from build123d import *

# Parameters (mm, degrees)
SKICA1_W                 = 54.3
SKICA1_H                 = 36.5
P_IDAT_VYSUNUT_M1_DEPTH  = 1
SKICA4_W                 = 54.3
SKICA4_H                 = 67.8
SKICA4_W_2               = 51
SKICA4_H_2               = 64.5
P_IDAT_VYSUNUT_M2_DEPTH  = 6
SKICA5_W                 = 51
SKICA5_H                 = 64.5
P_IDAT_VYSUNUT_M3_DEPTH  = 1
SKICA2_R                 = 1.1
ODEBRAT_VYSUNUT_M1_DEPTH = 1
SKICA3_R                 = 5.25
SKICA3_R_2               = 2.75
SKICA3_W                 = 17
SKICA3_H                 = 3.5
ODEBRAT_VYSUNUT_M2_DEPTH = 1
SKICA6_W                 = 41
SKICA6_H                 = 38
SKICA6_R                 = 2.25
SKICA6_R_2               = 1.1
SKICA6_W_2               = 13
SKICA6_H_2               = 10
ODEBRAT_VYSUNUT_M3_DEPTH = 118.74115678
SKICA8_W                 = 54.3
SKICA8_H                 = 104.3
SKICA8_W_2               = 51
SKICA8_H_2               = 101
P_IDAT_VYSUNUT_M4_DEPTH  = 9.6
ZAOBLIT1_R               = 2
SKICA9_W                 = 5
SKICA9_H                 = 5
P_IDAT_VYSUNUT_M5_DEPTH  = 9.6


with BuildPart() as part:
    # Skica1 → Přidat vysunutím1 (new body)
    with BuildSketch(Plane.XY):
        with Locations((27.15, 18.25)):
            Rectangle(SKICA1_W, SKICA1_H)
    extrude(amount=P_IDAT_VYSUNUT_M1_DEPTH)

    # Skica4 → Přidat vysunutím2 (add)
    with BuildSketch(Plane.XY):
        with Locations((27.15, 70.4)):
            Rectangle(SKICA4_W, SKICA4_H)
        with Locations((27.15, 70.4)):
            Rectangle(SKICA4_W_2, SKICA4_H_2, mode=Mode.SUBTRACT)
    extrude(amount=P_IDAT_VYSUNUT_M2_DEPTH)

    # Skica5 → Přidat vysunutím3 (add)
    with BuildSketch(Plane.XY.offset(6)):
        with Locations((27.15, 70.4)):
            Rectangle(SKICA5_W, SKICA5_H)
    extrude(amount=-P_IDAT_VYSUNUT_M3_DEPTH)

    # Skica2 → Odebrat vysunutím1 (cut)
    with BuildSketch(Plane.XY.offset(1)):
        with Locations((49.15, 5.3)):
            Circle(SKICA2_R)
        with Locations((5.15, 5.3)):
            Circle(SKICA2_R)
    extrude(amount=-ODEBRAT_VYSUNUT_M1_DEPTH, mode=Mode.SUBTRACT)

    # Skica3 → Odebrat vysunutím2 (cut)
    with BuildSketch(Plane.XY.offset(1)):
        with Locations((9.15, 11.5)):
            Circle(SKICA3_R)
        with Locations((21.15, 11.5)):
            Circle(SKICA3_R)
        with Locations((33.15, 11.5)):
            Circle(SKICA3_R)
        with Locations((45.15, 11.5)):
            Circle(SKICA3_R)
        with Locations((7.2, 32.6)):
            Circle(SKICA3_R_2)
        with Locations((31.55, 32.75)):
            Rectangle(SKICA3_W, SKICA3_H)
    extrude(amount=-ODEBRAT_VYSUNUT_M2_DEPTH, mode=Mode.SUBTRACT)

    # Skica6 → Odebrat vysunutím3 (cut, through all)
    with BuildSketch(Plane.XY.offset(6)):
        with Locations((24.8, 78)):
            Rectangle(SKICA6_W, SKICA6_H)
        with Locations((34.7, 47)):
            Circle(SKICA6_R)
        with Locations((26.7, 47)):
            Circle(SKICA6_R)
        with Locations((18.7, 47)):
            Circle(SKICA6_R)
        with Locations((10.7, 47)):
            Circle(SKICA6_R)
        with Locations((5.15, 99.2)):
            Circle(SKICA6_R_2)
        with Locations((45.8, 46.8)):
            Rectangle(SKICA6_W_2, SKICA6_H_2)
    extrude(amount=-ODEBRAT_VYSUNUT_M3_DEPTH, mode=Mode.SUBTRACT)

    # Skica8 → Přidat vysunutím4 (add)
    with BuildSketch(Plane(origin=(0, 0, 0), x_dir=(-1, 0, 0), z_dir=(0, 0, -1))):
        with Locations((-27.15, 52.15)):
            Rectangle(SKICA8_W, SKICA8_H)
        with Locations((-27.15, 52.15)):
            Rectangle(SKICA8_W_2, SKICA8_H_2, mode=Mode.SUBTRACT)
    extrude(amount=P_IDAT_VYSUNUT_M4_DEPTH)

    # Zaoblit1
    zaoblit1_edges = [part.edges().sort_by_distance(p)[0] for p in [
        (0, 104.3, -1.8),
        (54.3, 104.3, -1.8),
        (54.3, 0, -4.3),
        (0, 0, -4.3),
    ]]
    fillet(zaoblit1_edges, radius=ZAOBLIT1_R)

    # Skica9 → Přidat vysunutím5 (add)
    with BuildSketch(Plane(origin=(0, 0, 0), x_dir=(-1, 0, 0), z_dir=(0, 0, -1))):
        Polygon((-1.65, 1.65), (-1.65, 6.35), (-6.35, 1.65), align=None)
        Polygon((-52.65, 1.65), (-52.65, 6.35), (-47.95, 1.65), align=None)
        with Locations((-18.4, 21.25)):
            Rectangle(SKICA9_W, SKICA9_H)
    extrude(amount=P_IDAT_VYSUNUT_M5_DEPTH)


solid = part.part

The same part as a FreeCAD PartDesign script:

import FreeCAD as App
import Part
import Sketcher
Q = App.Units.Quantity


def edges_at(feature, points):
    """Names of the edges that pass closest to the given points."""
    edges = feature.Shape.Edges
    near = lambda p: min(range(len(edges)), key=lambda i: edges[i].distToShape(Part.Vertex(*p))[0])
    return sorted({f"Edge{near(p) + 1}" for p in points})

doc = App.newDocument("Part")
body = doc.addObject("PartDesign::Body", "Body")

sketch1 = body.newObject("Sketcher::SketchObject", "Sketch")
sketch1.AttachmentSupport = (doc.getObject("XY_Plane"), [""])
sketch1.MapMode = "FlatFace"
sketch1.addGeometry([
    Part.LineSegment(App.Vector(0, 36, 0), App.Vector(0, 0, 0)),
    Part.LineSegment(App.Vector(0, 0, 0), App.Vector(54, 0, 0)),
    Part.LineSegment(App.Vector(54, 0, 0), App.Vector(54, 36, 0)),
    Part.LineSegment(App.Vector(54, 36, 0), App.Vector(0, 36, 0)),
], False)
sketch1.addConstraint([
    Sketcher.Constraint("Coincident", 0, 2, 1, 1),
    Sketcher.Constraint("Coincident", 1, 2, 2, 1),
    Sketcher.Constraint("Coincident", 2, 2, 3, 1),
    Sketcher.Constraint("Coincident", 3, 2, 0, 1),
    Sketcher.Constraint("Vertical", 0),
    Sketcher.Constraint("Horizontal", 1),
    Sketcher.Constraint("Vertical", 2),
    Sketcher.Constraint("Horizontal", 3),
    Sketcher.Constraint("Coincident", 0, 2, -1, 1),
    Sketcher.Constraint("DistanceX", 1, 1, 1, 2, Q("54.3 mm")),
    Sketcher.Constraint("DistanceY", 0, 2, 0, 1, Q("36.5 mm")),
])
pad1 = body.newObject("PartDesign::Pad", "Pad")
pad1.Profile = sketch1
pad1.Length = 1

sketch2 = body.newObject("Sketcher::SketchObject", "Sketch001")
sketch2.AttachmentSupport = (doc.getObject("XY_Plane"), [""])
sketch2.MapMode = "FlatFace"
sketch2.addGeometry([
    Part.LineSegment(App.Vector(0, 104, 0), App.Vector(0, 36, 0)),
    Part.LineSegment(App.Vector(0, 36, 0), App.Vector(54, 36, 0)),
    Part.LineSegment(App.Vector(54, 36, 0), App.Vector(54, 104, 0)),
    Part.LineSegment(App.Vector(54, 104, 0), App.Vector(0, 104, 0)),
    Part.LineSegment(App.Vector(53, 38, 0), App.Vector(2, 38, 0)),
    Part.LineSegment(App.Vector(2, 38, 0), App.Vector(2, 103, 0)),
    Part.LineSegment(App.Vector(2, 103, 0), App.Vector(53, 103, 0)),
    Part.LineSegment(App.Vector(53, 103, 0), App.Vector(53, 38, 0)),
], False)
sketch2.addConstraint([
    Sketcher.Constraint("Coincident", 0, 2, 1, 1),
    Sketcher.Constraint("Coincident", 1, 2, 2, 1),
    Sketcher.Constraint("Coincident", 2, 2, 3, 1),
    Sketcher.Constraint("Coincident", 3, 2, 0, 1),
    Sketcher.Constraint("Coincident", 4, 2, 5, 1),
    Sketcher.Constraint("Coincident", 5, 2, 6, 1),
    Sketcher.Constraint("Coincident", 6, 2, 7, 1),
    Sketcher.Constraint("Coincident", 7, 2, 4, 1),
    Sketcher.Constraint("Vertical", 0),
    Sketcher.Constraint("Horizontal", 1),
    Sketcher.Constraint("Vertical", 2),
    Sketcher.Constraint("Horizontal", 3),
    Sketcher.Constraint("Horizontal", 4),
    Sketcher.Constraint("Vertical", 5),
    Sketcher.Constraint("Horizontal", 6),
    Sketcher.Constraint("Vertical", 7),
    Sketcher.Constraint("PointOnObject", 0, 2, -2),
    Sketcher.Constraint("DistanceX", 4, 2, 4, 1, Q("51 mm")),
    Sketcher.Constraint("DistanceX", 1, 1, 1, 2, Q("54.3 mm")),
    Sketcher.Constraint("DistanceY", 0, 2, 0, 1, Q("67.8 mm")),
    Sketcher.Constraint("DistanceY", 5, 1, 5, 2, Q("64.5 mm")),
    Sketcher.Constraint("DistanceY", -1, 1, 0, 2, Q("36.5 mm")),
    Sketcher.Constraint("DistanceX", -1, 1, 4, 2, Q("1.65 mm")),
    Sketcher.Constraint("DistanceY", -1, 1, 4, 2, Q("38.15 mm")),
])
pad2 = body.newObject("PartDesign::Pad", "Pad001")
pad2.Profile = sketch2
pad2.Length = 6

sketch3 = body.newObject("Sketcher::SketchObject", "Sketch002")
sketch3.AttachmentSupport = (doc.getObject("XY_Plane"), [""])
sketch3.MapMode = "FlatFace"
sketch3.AttachmentOffset = App.Placement(App.Vector(0, 0, 6), App.Rotation())
sketch3.addGeometry([
    Part.LineSegment(App.Vector(2, 103, 0), App.Vector(2, 38, 0)),
    Part.LineSegment(App.Vector(2, 38, 0), App.Vector(53, 38, 0)),
    Part.LineSegment(App.Vector(53, 38, 0), App.Vector(53, 103, 0)),
    Part.LineSegment(App.Vector(53, 103, 0), App.Vector(2, 103, 0)),
], False)
sketch3.addConstraint([
    Sketcher.Constraint("Coincident", 0, 2, 1, 1),
    Sketcher.Constraint("Coincident", 1, 2, 2, 1),
    Sketcher.Constraint("Coincident", 2, 2, 3, 1),
    Sketcher.Constraint("Coincident", 3, 2, 0, 1),
    Sketcher.Constraint("Vertical", 0),
    Sketcher.Constraint("Horizontal", 1),
    Sketcher.Constraint("Vertical", 2),
    Sketcher.Constraint("Horizontal", 3),
    Sketcher.Constraint("DistanceX", 1, 1, 1, 2, Q("51 mm")),
    Sketcher.Constraint("DistanceY", 0, 2, 0, 1, Q("64.5 mm")),
    Sketcher.Constraint("DistanceX", -1, 1, 0, 2, Q("1.65 mm")),
    Sketcher.Constraint("DistanceY", -1, 1, 0, 2, Q("38.15 mm")),
])
pad3 = body.newObject("PartDesign::Pad", "Pad002")
pad3.Profile = sketch3
pad3.Length = 1
pad3.Reversed = True

sketch4 = body.newObject("Sketcher::SketchObject", "Sketch003")
sketch4.AttachmentSupport = (doc.getObject("XY_Plane"), [""])
sketch4.MapMode = "FlatFace"
sketch4.AttachmentOffset = App.Placement(App.Vector(0, 0, 1), App.Rotation())
sketch4.addGeometry([
    Part.Circle(App.Vector(49.1, 5.3, 0), App.Vector(0, 0, 1), 1.1),
    Part.Circle(App.Vector(5.2, 5.3, 0), App.Vector(0, 0, 1), 1.1),
], False)
sketch4.addConstraint([
    Sketcher.Constraint("Equal", 0, 1),
    Sketcher.Constraint("Horizontal", 0, 3, 1, 3),
    Sketcher.Constraint("Diameter", 0, Q("2.2 mm")),
    Sketcher.Constraint("DistanceX", 1, 3, 0, 3, Q("44 mm")),
    Sketcher.Constraint("DistanceY", -1, 1, 0, 3, Q("5.3 mm")),
    Sketcher.Constraint("DistanceX", -1, 1, 0, 3, Q("49.15 mm")),
])
pocket1 = body.newObject("PartDesign::Pocket", "Pocket")
pocket1.Profile = sketch4
pocket1.Length = 1

sketch5 = body.newObject("Sketcher::SketchObject", "Sketch004")
sketch5.AttachmentSupport = (doc.getObject("XY_Plane"), [""])
sketch5.MapMode = "FlatFace"
sketch5.AttachmentOffset = App.Placement(App.Vector(0, 0, 1), App.Rotation())
sketch5.addGeometry([
    Part.Circle(App.Vector(9.2, 11.5, 0), App.Vector(0, 0, 1), 5.2),
    Part.Circle(App.Vector(21.1, 11.5, 0), App.Vector(0, 0, 1), 5.2),
    Part.Circle(App.Vector(33.1, 11.5, 0), App.Vector(0, 0, 1), 5.2),
    Part.Circle(App.Vector(45.1, 11.5, 0), App.Vector(0, 0, 1), 5.2),
    Part.Circle(App.Vector(7.2, 32.6, 0), App.Vector(0, 0, 1), 2.8),
    Part.LineSegment(App.Vector(23.1, 34.5, 0), App.Vector(23.1, 31, 0)),
    Part.LineSegment(App.Vector(23.1, 31, 0), App.Vector(40, 31, 0)),
    Part.LineSegment(App.Vector(40, 31, 0), App.Vector(40, 34.5, 0)),
    Part.LineSegment(App.Vector(40, 34.5, 0), App.Vector(23.1, 34.5, 0)),
], False)
sketch5.addConstraint([
    Sketcher.Constraint("Coincident", 5, 2, 6, 1),
    Sketcher.Constraint("Coincident", 6, 2, 7, 1),
    Sketcher.Constraint("Coincident", 7, 2, 8, 1),
    Sketcher.Constraint("Coincident", 8, 2, 5, 1),
    Sketcher.Constraint("Vertical", 5),
    Sketcher.Constraint("Horizontal", 6),
    Sketcher.Constraint("Vertical", 7),
    Sketcher.Constraint("Horizontal", 8),
    Sketcher.Constraint("Equal", 0, 1),
    Sketcher.Constraint("Equal", 1, 2),
    Sketcher.Constraint("Equal", 2, 3),
    Sketcher.Constraint("Horizontal", 0, 3, 1, 3),
    Sketcher.Constraint("Horizontal", 1, 3, 2, 3),
    Sketcher.Constraint("Horizontal", 2, 3, 3, 3),
    Sketcher.Constraint("Diameter", 0, Q("10.5 mm")),
    Sketcher.Constraint("Diameter", 4, Q("5.5 mm")),
    Sketcher.Constraint("DistanceX", 6, 1, 6, 2, Q("17 mm")),
    Sketcher.Constraint("DistanceY", 5, 2, 5, 1, Q("3.5 mm")),
    Sketcher.Constraint("DistanceY", -1, 1, 5, 2, Q("31 mm")),
    Sketcher.Constraint("DistanceX", 0, 3, 1, 3, Q("12 mm")),
    Sketcher.Constraint("DistanceX", 1, 3, 2, 3, Q("12 mm")),
    Sketcher.Constraint("DistanceX", 2, 3, 3, 3, Q("12 mm")),
    Sketcher.Constraint("DistanceY", 3, 3, 7, 2, Q("23 mm")),
    Sketcher.Constraint("DistanceX", -1, 1, 4, 3, Q("7.2 mm")),
    Sketcher.Constraint("DistanceY", -1, 1, 4, 3, Q("32.6 mm")),
    Sketcher.Constraint("DistanceX", 1, 3, 5, 2, Q("1.9 mm")),
    Sketcher.Constraint("DistanceX", -1, 1, 0, 3, Q("9.15 mm")),
])
pocket2 = body.newObject("PartDesign::Pocket", "Pocket001")
pocket2.Profile = sketch5
pocket2.Length = 1

sketch6 = body.newObject("Sketcher::SketchObject", "Sketch005")
sketch6.AttachmentSupport = (doc.getObject("XY_Plane"), [""])
sketch6.MapMode = "FlatFace"
sketch6.AttachmentOffset = App.Placement(App.Vector(0, 0, 6), App.Rotation())
sketch6.addGeometry([
    Part.LineSegment(App.Vector(4.3, 97, 0), App.Vector(4.3, 59, 0)),
    Part.LineSegment(App.Vector(4.3, 59, 0), App.Vector(45.3, 59, 0)),
    Part.LineSegment(App.Vector(45.3, 59, 0), App.Vector(45.3, 97, 0)),
    Part.LineSegment(App.Vector(45.3, 97, 0), App.Vector(4.3, 97, 0)),
    Part.Circle(App.Vector(34.7, 47, 0), App.Vector(0, 0, 1), 2.2),
    Part.Circle(App.Vector(26.7, 47, 0), App.Vector(0, 0, 1), 2.2),
    Part.Circle(App.Vector(18.7, 47, 0), App.Vector(0, 0, 1), 2.2),
    Part.Circle(App.Vector(10.7, 47, 0), App.Vector(0, 0, 1), 2.2),
    Part.Circle(App.Vector(5.2, 99.2, 0), App.Vector(0, 0, 1), 1.1),
    Part.LineSegment(App.Vector(39.3, 51.8, 0), App.Vector(39.3, 41.8, 0)),
    Part.LineSegment(App.Vector(39.3, 41.8, 0), App.Vector(52.3, 41.8, 0)),
    Part.LineSegment(App.Vector(52.3, 41.8, 0), App.Vector(52.3, 51.8, 0)),
    Part.LineSegment(App.Vector(52.3, 51.8, 0), App.Vector(39.3, 51.8, 0)),
], False)
sketch6.addConstraint([
    Sketcher.Constraint("Coincident", 0, 2, 1, 1),
    Sketcher.Constraint("Coincident", 1, 2, 2, 1),
    Sketcher.Constraint("Coincident", 2, 2, 3, 1),
    Sketcher.Constraint("Coincident", 3, 2, 0, 1),
    Sketcher.Constraint("Coincident", 9, 2, 10, 1),
    Sketcher.Constraint("Coincident", 10, 2, 11, 1),
    Sketcher.Constraint("Coincident", 11, 2, 12, 1),
    Sketcher.Constraint("Coincident", 12, 2, 9, 1),
    Sketcher.Constraint("Vertical", 0),
    Sketcher.Constraint("Horizontal", 1),
    Sketcher.Constraint("Vertical", 2),
    Sketcher.Constraint("Horizontal", 3),
    Sketcher.Constraint("Vertical", 9),
    Sketcher.Constraint("Horizontal", 10),
    Sketcher.Constraint("Vertical", 11),
    Sketcher.Constraint("Horizontal", 12),
    Sketcher.Constraint("Equal", 4, 5),
    Sketcher.Constraint("Equal", 5, 6),
    Sketcher.Constraint("Equal", 6, 7),
    Sketcher.Constraint("Horizontal", 4, 3, 5, 3),
    Sketcher.Constraint("Horizontal", 5, 3, 6, 3),
    Sketcher.Constraint("Horizontal", 6, 3, 7, 3),
    Sketcher.Constraint("Diameter", 4, Q("4.5 mm")),
    Sketcher.Constraint("Diameter", 8, Q("2.2 mm")),
    Sketcher.Constraint("DistanceX", 1, 1, 1, 2, Q("41 mm")),
    Sketcher.Constraint("DistanceX", 10, 1, 10, 2, Q("13 mm")),
    Sketcher.Constraint("DistanceY", 0, 2, 0, 1, Q("38 mm")),
    Sketcher.Constraint("DistanceY", 9, 2, 9, 1, Q("10 mm")),
    Sketcher.Constraint("DistanceY", -1, 1, 4, 3, Q("47 mm")),
    Sketcher.Constraint("DistanceY", -1, 1, 0, 2, Q("59 mm")),
    Sketcher.Constraint("DistanceX", 5, 3, 4, 3, Q("8 mm")),
    Sketcher.Constraint("DistanceX", 6, 3, 5, 3, Q("8 mm")),
    Sketcher.Constraint("DistanceX", 7, 3, 6, 3, Q("8 mm")),
    Sketcher.Constraint("DistanceX", 9, 2, 1, 2, Q("6 mm")),
    Sketcher.Constraint("DistanceX", -1, 1, 4, 3, Q("34.7 mm")),
    Sketcher.Constraint("DistanceY", -1, 1, 8, 3, Q("99.2 mm")),
    Sketcher.Constraint("DistanceX", -1, 1, 0, 2, Q("4.3 mm")),
    Sketcher.Constraint("DistanceY", -1, 1, 9, 2, Q("41.8 mm")),
    Sketcher.Constraint("DistanceX", -1, 1, 8, 3, Q("5.15 mm")),
])
pocket3 = body.newObject("PartDesign::Pocket", "Pocket002")
pocket3.Profile = sketch6
pocket3.Type = "ThroughAll"

sketch7 = body.newObject("Sketcher::SketchObject", "Sketch006")
sketch7.AttachmentSupport = (doc.getObject("XY_Plane"), [""])
sketch7.MapMode = "FlatFace"
sketch7.addGeometry([
    Part.LineSegment(App.Vector(54, 104, 0), App.Vector(54, 0, 0)),
    Part.LineSegment(App.Vector(54, 0, 0), App.Vector(0, 0, 0)),
    Part.LineSegment(App.Vector(0, 0, 0), App.Vector(0, 104, 0)),
    Part.LineSegment(App.Vector(0, 104, 0), App.Vector(54, 104, 0)),
    Part.LineSegment(App.Vector(2, 2, 0), App.Vector(53, 2, 0)),
    Part.LineSegment(App.Vector(53, 2, 0), App.Vector(53, 103, 0)),
    Part.LineSegment(App.Vector(53, 103, 0), App.Vector(2, 103, 0)),
    Part.LineSegment(App.Vector(2, 103, 0), App.Vector(2, 2, 0)),
], False)
sketch7.addConstraint([
    Sketcher.Constraint("Coincident", 0, 2, 1, 1),
    Sketcher.Constraint("Coincident", 1, 2, 2, 1),
    Sketcher.Constraint("Coincident", 2, 2, 3, 1),
    Sketcher.Constraint("Coincident", 3, 2, 0, 1),
    Sketcher.Constraint("Coincident", 4, 2, 5, 1),
    Sketcher.Constraint("Coincident", 5, 2, 6, 1),
    Sketcher.Constraint("Coincident", 6, 2, 7, 1),
    Sketcher.Constraint("Coincident", 7, 2, 4, 1),
    Sketcher.Constraint("Vertical", 0),
    Sketcher.Constraint("Horizontal", 1),
    Sketcher.Constraint("Vertical", 2),
    Sketcher.Constraint("Horizontal", 3),
    Sketcher.Constraint("Horizontal", 4),
    Sketcher.Constraint("Vertical", 5),
    Sketcher.Constraint("Horizontal", 6),
    Sketcher.Constraint("Vertical", 7),
    Sketcher.Constraint("Coincident", 1, 2, -1, 1),
    Sketcher.Constraint("DistanceX", 4, 1, 4, 2, Q("51 mm")),
    Sketcher.Constraint("DistanceY", 5, 1, 5, 2, Q("101 mm")),
    Sketcher.Constraint("DistanceX", 1, 2, 1, 1, Q("54.3 mm")),
    Sketcher.Constraint("DistanceY", 0, 2, 0, 1, Q("104.3 mm")),
    Sketcher.Constraint("DistanceX", -1, 1, 4, 2, Q("52.65 mm")),
    Sketcher.Constraint("DistanceY", -1, 1, 4, 2, Q("1.65 mm")),
])
pad4 = body.newObject("PartDesign::Pad", "Pad003")
pad4.Profile = sketch7
pad4.Length = 9.6
pad4.Reversed = True
doc.recompute()

fillet = body.newObject("PartDesign::Fillet", "Fillet")
fillet.Base = (pad4, edges_at(pad4, [
    (0, 104.3, -1.8),
    (54.3, 104.3, -1.8),
    (54.3, 0, -4.3),
    (0, 0, -4.3),
]))
fillet.Radius = 2

sketch8 = body.newObject("Sketcher::SketchObject", "Sketch007")
sketch8.AttachmentSupport = (doc.getObject("XY_Plane"), [""])
sketch8.MapMode = "FlatFace"
sketch8.addGeometry([
    Part.LineSegment(App.Vector(1.6, 1.6, 0), App.Vector(1.6, 6.3, 0)),
    Part.LineSegment(App.Vector(1.6, 6.3, 0), App.Vector(6.3, 1.6, 0)),
    Part.LineSegment(App.Vector(6.3, 1.6, 0), App.Vector(1.6, 1.6, 0)),
    Part.LineSegment(App.Vector(52.6, 6.3, 0), App.Vector(52.6, 1.6, 0)),
    Part.LineSegment(App.Vector(52.6, 1.6, 0), App.Vector(48, 1.6, 0)),
    Part.LineSegment(App.Vector(48, 1.6, 0), App.Vector(52.6, 6.3, 0)),
    Part.LineSegment(App.Vector(20.9, 23.8, 0), App.Vector(20.9, 18.8, 0)),
    Part.LineSegment(App.Vector(20.9, 18.8, 0), App.Vector(15.9, 18.8, 0)),
    Part.LineSegment(App.Vector(15.9, 18.8, 0), App.Vector(15.9, 23.8, 0)),
    Part.LineSegment(App.Vector(15.9, 23.8, 0), App.Vector(20.9, 23.8, 0)),
], False)
sketch8.addConstraint([
    Sketcher.Constraint("Coincident", 0, 2, 1, 1),
    Sketcher.Constraint("Coincident", 1, 2, 2, 1),
    Sketcher.Constraint("Coincident", 2, 2, 0, 1),
    Sketcher.Constraint("Coincident", 3, 2, 4, 1),
    Sketcher.Constraint("Coincident", 4, 2, 5, 1),
    Sketcher.Constraint("Coincident", 5, 2, 3, 1),
    Sketcher.Constraint("Coincident", 6, 2, 7, 1),
    Sketcher.Constraint("Coincident", 7, 2, 8, 1),
    Sketcher.Constraint("Coincident", 8, 2, 9, 1),
    Sketcher.Constraint("Coincident", 9, 2, 6, 1),
    Sketcher.Constraint("Vertical", 0),
    Sketcher.Constraint("Horizontal", 2),
    Sketcher.Constraint("Vertical", 3),
    Sketcher.Constraint("Horizontal", 4),
    Sketcher.Constraint("Vertical", 6),
    Sketcher.Constraint("Horizontal", 7),
    Sketcher.Constraint("Vertical", 8),
    Sketcher.Constraint("Horizontal", 9),
    Sketcher.Constraint("Perpendicular", 1, 5),
    Sketcher.Constraint("Horizontal", 2, 2, 3, 2),
    Sketcher.Constraint("Horizontal", 0, 2, 5, 2),
    Sketcher.Constraint("Equal", 2, 4),
    Sketcher.Constraint("Equal", 9, 6),
    Sketcher.Constraint("DistanceX", 7, 2, 7, 1, Q("5 mm")),
    Sketcher.Constraint("DistanceX", 2, 2, 2, 1, Q("4.7 mm")),
    Sketcher.Constraint("DistanceX", 2, 2, 3, 2, Q("51 mm")),
    Sketcher.Constraint("DistanceX", -1, 1, 6, 2, Q("20.9 mm")),
    Sketcher.Constraint("DistanceY", 1, 2, 6, 2, Q("17.1 mm")),
    Sketcher.Constraint("DistanceX", -1, 1, 0, 2, Q("1.65 mm")),
    Sketcher.Constraint("DistanceY", -1, 1, 0, 2, Q("6.35 mm")),
])
pad5 = body.newObject("PartDesign::Pad", "Pad004")
pad5.Profile = sketch8
pad5.Length = 9.6
pad5.Reversed = True

doc.recompute()
